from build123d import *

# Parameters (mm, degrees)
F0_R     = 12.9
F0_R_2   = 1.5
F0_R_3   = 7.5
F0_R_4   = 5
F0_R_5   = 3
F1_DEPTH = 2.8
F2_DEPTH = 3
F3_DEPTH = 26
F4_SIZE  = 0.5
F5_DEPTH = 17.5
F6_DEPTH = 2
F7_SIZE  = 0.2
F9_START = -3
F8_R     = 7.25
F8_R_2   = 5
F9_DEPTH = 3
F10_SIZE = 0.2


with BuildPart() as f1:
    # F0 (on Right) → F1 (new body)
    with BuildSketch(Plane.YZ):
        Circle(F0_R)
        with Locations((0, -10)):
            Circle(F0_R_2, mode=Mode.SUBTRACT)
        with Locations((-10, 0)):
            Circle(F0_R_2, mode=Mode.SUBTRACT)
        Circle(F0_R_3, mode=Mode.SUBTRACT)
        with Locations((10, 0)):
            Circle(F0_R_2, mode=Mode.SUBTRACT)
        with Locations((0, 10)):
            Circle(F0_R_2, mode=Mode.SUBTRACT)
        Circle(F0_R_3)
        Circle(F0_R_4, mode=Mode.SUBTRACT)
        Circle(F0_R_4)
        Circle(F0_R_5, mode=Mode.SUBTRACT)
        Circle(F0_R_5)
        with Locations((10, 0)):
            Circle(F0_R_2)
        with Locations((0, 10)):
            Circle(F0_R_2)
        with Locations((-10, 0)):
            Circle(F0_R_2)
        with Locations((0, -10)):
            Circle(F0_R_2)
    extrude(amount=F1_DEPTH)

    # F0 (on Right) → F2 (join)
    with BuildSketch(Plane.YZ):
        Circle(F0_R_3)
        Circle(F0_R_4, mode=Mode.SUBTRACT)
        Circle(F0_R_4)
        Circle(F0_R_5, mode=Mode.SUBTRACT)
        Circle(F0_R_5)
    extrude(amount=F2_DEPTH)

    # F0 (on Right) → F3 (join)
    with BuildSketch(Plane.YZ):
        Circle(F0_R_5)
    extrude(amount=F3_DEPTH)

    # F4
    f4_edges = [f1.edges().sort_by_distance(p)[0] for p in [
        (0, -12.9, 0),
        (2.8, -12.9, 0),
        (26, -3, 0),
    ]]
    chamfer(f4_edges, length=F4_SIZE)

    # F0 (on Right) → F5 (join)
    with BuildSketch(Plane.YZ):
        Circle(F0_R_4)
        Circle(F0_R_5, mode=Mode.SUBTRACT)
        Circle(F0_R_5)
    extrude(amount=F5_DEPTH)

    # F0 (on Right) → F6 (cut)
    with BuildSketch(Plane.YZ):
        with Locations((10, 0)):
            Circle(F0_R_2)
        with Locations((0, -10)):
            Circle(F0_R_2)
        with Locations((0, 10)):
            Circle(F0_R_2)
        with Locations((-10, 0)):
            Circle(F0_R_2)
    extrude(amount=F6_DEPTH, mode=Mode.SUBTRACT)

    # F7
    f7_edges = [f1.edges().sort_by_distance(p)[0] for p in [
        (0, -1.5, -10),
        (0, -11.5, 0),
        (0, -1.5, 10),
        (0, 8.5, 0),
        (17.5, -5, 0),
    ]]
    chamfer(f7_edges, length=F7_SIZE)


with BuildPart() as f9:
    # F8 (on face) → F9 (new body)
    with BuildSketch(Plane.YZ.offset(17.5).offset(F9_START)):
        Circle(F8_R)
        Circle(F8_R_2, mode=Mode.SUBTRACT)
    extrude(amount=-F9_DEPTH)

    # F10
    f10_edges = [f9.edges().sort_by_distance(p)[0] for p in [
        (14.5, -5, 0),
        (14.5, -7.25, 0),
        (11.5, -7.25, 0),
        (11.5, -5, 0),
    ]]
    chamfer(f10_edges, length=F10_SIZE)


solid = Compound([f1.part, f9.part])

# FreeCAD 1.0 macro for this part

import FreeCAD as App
import Part
import Sketcher
from FreeCAD import Vector


def edges_at(feature, points):
    """Names of the edges that pass closest to the given points."""
    edges = feature.Shape.Edges
    near = lambda p: min(range(len(edges)), key=lambda i: edges[i].distToShape(Part.Vertex(*p))[0])
    return sorted({f"Edge{near(p) + 1}" for p in points})

doc = App.newDocument("Part")
body = doc.addObject("PartDesign::Body", "Body")

sketch1 = doc.addObject("Sketcher::SketchObject", "Sketch")
body.addObject(sketch1)
sketch1.AttachmentSupport = (doc.YZ_Plane, [""])
sketch1.MapMode = "FlatFace"
sketch1.addGeometry(Part.Circle(Vector(0, 0, 0), Vector(0, 0, 1), 13), False)
sketch1.addConstraint(Sketcher.Constraint("Coincident", 0, 3, -1, 1))
sketch1.addConstraint(Sketcher.Constraint("Diameter", 0, 25.8))
pad1 = doc.addObject("PartDesign::Pad", "Pad")
body.addObject(pad1)
pad1.Profile = sketch1
pad1.Length = 2.8

sketch2 = doc.addObject("Sketcher::SketchObject", "Sketch001")
body.addObject(sketch2)
sketch2.AttachmentSupport = (doc.YZ_Plane, [""])
sketch2.MapMode = "FlatFace"
sketch2.addGeometry(Part.Circle(Vector(0, 0, 0), Vector(0, 0, 1), 8), False)
sketch2.addConstraint(Sketcher.Constraint("Coincident", 0, 3, -1, 1))
sketch2.addConstraint(Sketcher.Constraint("Diameter", 0, 15.0))
pad2 = doc.addObject("PartDesign::Pad", "Pad001")
body.addObject(pad2)
pad2.Profile = sketch2
pad2.Length = 3

sketch3 = doc.addObject("Sketcher::SketchObject", "Sketch002")
body.addObject(sketch3)
sketch3.AttachmentSupport = (doc.YZ_Plane, [""])
sketch3.MapMode = "FlatFace"
sketch3.addGeometry(Part.Circle(Vector(0, 0, 0), Vector(0, 0, 1), 3), False)
sketch3.addConstraint(Sketcher.Constraint("Coincident", 0, 3, -1, 1))
sketch3.addConstraint(Sketcher.Constraint("Diameter", 0, 6.0))
pad3 = doc.addObject("PartDesign::Pad", "Pad002")
body.addObject(pad3)
pad3.Profile = sketch3
pad3.Length = 26
doc.recompute()

chamfer = doc.addObject("PartDesign::Chamfer", "Chamfer")
body.addObject(chamfer)
chamfer.Base = (pad3, edges_at(pad3, [(0, -12.9, 0), (2.8, -12.9, 0), (26, -3, 0)]))
chamfer.Size = 0.5

sketch4 = doc.addObject("Sketcher::SketchObject", "Sketch003")
body.addObject(sketch4)
sketch4.AttachmentSupport = (doc.YZ_Plane, [""])
sketch4.MapMode = "FlatFace"
sketch4.addGeometry(Part.Circle(Vector(0, 0, 0), Vector(0, 0, 1), 5), False)
sketch4.addConstraint(Sketcher.Constraint("Coincident", 0, 3, -1, 1))
sketch4.addConstraint(Sketcher.Constraint("Diameter", 0, 10.0))
pad4 = doc.addObject("PartDesign::Pad", "Pad003")
body.addObject(pad4)
pad4.Profile = sketch4
pad4.Length = 17.5

sketch5 = doc.addObject("Sketcher::SketchObject", "Sketch004")
body.addObject(sketch5)
sketch5.AttachmentSupport = (doc.YZ_Plane, [""])
sketch5.MapMode = "FlatFace"
sketch5.addGeometry(Part.Circle(Vector(10, 0, 0), Vector(0, 0, 1), 1.5), False)
sketch5.addGeometry(Part.Circle(Vector(0, -10, 0), Vector(0, 0, 1), 1.5), False)
sketch5.addGeometry(Part.Circle(Vector(0, 10, 0), Vector(0, 0, 1), 1.5), False)
sketch5.addGeometry(Part.Circle(Vector(-10, 0, 0), Vector(0, 0, 1), 1.5), False)
sketch5.addConstraint(Sketcher.Constraint("Equal", 0, 1))
sketch5.addConstraint(Sketcher.Constraint("Equal", 1, 2))
sketch5.addConstraint(Sketcher.Constraint("Equal", 2, 3))
sketch5.addConstraint(Sketcher.Constraint("Symmetric", 1, 3, 2, 3, -1, 1))
sketch5.addConstraint(Sketcher.Constraint("Symmetric", 0, 3, 3, 3, -1, 1))
sketch5.addConstraint(Sketcher.Constraint("PointOnObject", 0, 3, -1))
sketch5.addConstraint(Sketcher.Constraint("PointOnObject", 1, 3, -2))
sketch5.addConstraint(Sketcher.Constraint("Diameter", 0, 3.0))
sketch5.addConstraint(Sketcher.Constraint("DistanceX", -1, 1, 0, 3, 10.0))
sketch5.addConstraint(Sketcher.Constraint("DistanceY", 1, 3, -1, 1, 10.0))
pocket1 = doc.addObject("PartDesign::Pocket", "Pocket")
body.addObject(pocket1)
pocket1.Profile = sketch5
pocket1.Length = 2
pocket1.Reversed = True
doc.recompute()

chamfer2 = doc.addObject("PartDesign::Chamfer", "Chamfer001")
body.addObject(chamfer2)
chamfer2.Base = (pocket1, edges_at(pocket1, [
    (0, -1.5, -10),
    (0, -11.5, 0),
    (0, -1.5, 10),
    (0, 8.5, 0),
    (17.5, -5, 0),
]))
chamfer2.Size = 0.2
body2 = doc.addObject("PartDesign::Body", "Body001")

sketch6 = doc.addObject("Sketcher::SketchObject", "Sketch005")
body2.addObject(sketch6)
sketch6.AttachmentSupport = (doc.getObject("YZ_Plane001"), [""])
sketch6.MapMode = "FlatFace"
sketch6.AttachmentOffset = App.Placement(Vector(0, 0, 14.5), App.Rotation())
sketch6.addGeometry(Part.Circle(Vector(0, 0, 0), Vector(0, 0, 1), 7), False)
sketch6.addGeometry(Part.Circle(Vector(0, 0, 0), Vector(0, 0, 1), 5), False)
sketch6.addConstraint(Sketcher.Constraint("Coincident", 0, 3, -1, 1))
sketch6.addConstraint(Sketcher.Constraint("Coincident", 1, 3, -1, 1))
sketch6.addConstraint(Sketcher.Constraint("Diameter", 1, 10.0))
sketch6.addConstraint(Sketcher.Constraint("Diameter", 0, 14.5))
pad5 = doc.addObject("PartDesign::Pad", "Pad004")
body2.addObject(pad5)
pad5.Profile = sketch6
pad5.Length = 3
pad5.Reversed = True
doc.recompute()

chamfer3 = doc.addObject("PartDesign::Chamfer", "Chamfer002")
body2.addObject(chamfer3)
chamfer3.Base = (pad5, edges_at(pad5, [
    (14.5, -5, 0),
    (14.5, -7.25, 0),
    (11.5, -7.25, 0),
    (11.5, -5, 0),
]))
chamfer3.Size = 0.2

doc.recompute()
